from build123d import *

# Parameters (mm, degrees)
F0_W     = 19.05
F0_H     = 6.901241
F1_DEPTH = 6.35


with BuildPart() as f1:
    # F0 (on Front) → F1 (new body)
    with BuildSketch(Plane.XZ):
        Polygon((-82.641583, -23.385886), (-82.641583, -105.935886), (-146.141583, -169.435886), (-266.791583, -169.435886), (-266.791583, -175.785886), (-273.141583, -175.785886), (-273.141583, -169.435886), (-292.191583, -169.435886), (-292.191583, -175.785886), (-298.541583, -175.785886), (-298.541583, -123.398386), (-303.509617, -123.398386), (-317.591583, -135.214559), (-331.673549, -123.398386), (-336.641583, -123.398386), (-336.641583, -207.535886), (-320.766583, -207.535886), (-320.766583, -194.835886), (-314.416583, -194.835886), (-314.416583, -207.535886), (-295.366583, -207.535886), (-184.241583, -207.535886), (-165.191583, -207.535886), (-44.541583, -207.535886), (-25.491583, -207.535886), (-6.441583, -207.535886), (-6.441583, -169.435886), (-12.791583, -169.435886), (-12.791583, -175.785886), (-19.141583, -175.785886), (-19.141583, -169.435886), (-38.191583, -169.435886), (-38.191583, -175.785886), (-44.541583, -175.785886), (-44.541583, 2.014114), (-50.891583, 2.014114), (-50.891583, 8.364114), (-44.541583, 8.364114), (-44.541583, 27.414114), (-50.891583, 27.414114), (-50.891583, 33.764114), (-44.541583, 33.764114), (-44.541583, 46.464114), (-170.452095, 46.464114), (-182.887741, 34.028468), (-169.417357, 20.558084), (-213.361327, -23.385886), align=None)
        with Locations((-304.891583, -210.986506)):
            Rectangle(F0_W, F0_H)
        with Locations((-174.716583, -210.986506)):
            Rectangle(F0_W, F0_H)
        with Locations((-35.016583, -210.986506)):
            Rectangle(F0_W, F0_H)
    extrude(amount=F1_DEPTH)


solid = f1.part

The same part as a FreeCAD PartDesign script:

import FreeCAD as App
import Part
import Sketcher

V = App.Vector
Q = App.Units.Quantity

doc = App.newDocument("Part")
body = doc.addObject("PartDesign::Body", "Body")

# Sketch on XZ plane
sketch1 = body.newObject("Sketcher::SketchObject", "Sketch")
sketch1.AttachmentSupport = (doc.getObject("XZ_Plane"), [""])
sketch1.MapMode = "FlatFace"
sketch1.addGeometry(Part.LineSegment(V(-182.9, 34, 0), V(-169.4, 20.6, 0)), False)
sketch1.addGeometry(Part.LineSegment(V(-169.4, 20.6, 0), V(-213.4, -23.4, 0)), False)
sketch1.addGeometry(Part.LineSegment(V(-213.4, -23.4, 0), V(-82.6, -23.4, 0)), False)
sketch1.addGeometry(Part.LineSegment(V(-82.6, -23.4, 0), V(-82.6, -105.9, 0)), False)
sketch1.addGeometry(Part.LineSegment(V(-82.6, -105.9, 0), V(-146.1, -169.4, 0)), False)
sketch1.addGeometry(Part.LineSegment(V(-146.1, -169.4, 0), V(-266.8, -169.4, 0)), False)
sketch1.addGeometry(Part.LineSegment(V(-266.8, -169.4, 0), V(-266.8, -175.8, 0)), False)
sketch1.addGeometry(Part.LineSegment(V(-266.8, -175.8, 0), V(-273.1, -175.8, 0)), False)
sketch1.addGeometry(Part.LineSegment(V(-273.1, -175.8, 0), V(-273.1, -169.4, 0)), False)
sketch1.addGeometry(Part.LineSegment(V(-273.1, -169.4, 0), V(-292.2, -169.4, 0)), False)
sketch1.addGeometry(Part.LineSegment(V(-292.2, -169.4, 0), V(-292.2, -175.8, 0)), False)
sketch1.addGeometry(Part.LineSegment(V(-292.2, -175.8, 0), V(-298.5, -175.8, 0)), False)
sketch1.addGeometry(Part.LineSegment(V(-298.5, -175.8, 0), V(-298.5, -123.4, 0)), False)
sketch1.addGeometry(Part.LineSegment(V(-298.5, -123.4, 0), V(-303.5, -123.4, 0)), False)
sketch1.addGeometry(Part.LineSegment(V(-303.5, -123.4, 0), V(-317.6, -135.2, 0)), False)
sketch1.addGeometry(Part.LineSegment(V(-317.6, -135.2, 0), V(-331.7, -123.4, 0)), False)
sketch1.addGeometry(Part.LineSegment(V(-331.7, -123.4, 0), V(-336.6, -123.4, 0)), False)
sketch1.addGeometry(Part.LineSegment(V(-336.6, -123.4, 0), V(-336.6, -207.5, 0)), False)
sketch1.addGeometry(Part.LineSegment(V(-336.6, -207.5, 0), V(-320.8, -207.5, 0)), False)
sketch1.addGeometry(Part.LineSegment(V(-320.8, -207.5, 0), V(-320.8, -194.8, 0)), False)
sketch1.addGeometry(Part.LineSegment(V(-320.8, -194.8, 0), V(-314.4, -194.8, 0)), False)
sketch1.addGeometry(Part.LineSegment(V(-314.4, -194.8, 0), V(-314.4, -214.4, 0)), False)
sketch1.addGeometry(Part.LineSegment(V(-314.4, -214.4, 0), V(-295.4, -214.4, 0)), False)
sketch1.addGeometry(Part.LineSegment(V(-295.4, -214.4, 0), V(-295.4, -207.5, 0)), False)
sketch1.addGeometry(Part.LineSegment(V(-295.4, -207.5, 0), V(-184.2, -207.5, 0)), False)
sketch1.addGeometry(Part.LineSegment(V(-184.2, -207.5, 0), V(-184.2, -214.4, 0)), False)
sketch1.addGeometry(Part.LineSegment(V(-184.2, -214.4, 0), V(-165.2, -214.4, 0)), False)
sketch1.addGeometry(Part.LineSegment(V(-165.2, -214.4, 0), V(-165.2, -207.5, 0)), False)
sketch1.addGeometry(Part.LineSegment(V(-165.2, -207.5, 0), V(-44.5, -207.5, 0)), False)
sketch1.addGeometry(Part.LineSegment(V(-44.5, -207.5, 0), V(-44.5, -214.4, 0)), False)
sketch1.addGeometry(Part.LineSegment(V(-44.5, -214.4, 0), V(-25.5, -214.4, 0)), False)
sketch1.addGeometry(Part.LineSegment(V(-25.5, -214.4, 0), V(-25.5, -207.5, 0)), False)
sketch1.addGeometry(Part.LineSegment(V(-25.5, -207.5, 0), V(-6.4, -207.5, 0)), False)
sketch1.addGeometry(Part.LineSegment(V(-6.4, -207.5, 0), V(-6.4, -169.4, 0)), False)
sketch1.addGeometry(Part.LineSegment(V(-6.4, -169.4, 0), V(-12.8, -169.4, 0)), False)
sketch1.addGeometry(Part.LineSegment(V(-12.8, -169.4, 0), V(-12.8, -175.8, 0)), False)
sketch1.addGeometry(Part.LineSegment(V(-12.8, -175.8, 0), V(-19.1, -175.8, 0)), False)
sketch1.addGeometry(Part.LineSegment(V(-19.1, -175.8, 0), V(-19.1, -169.4, 0)), False)
sketch1.addGeometry(Part.LineSegment(V(-19.1, -169.4, 0), V(-38.2, -169.4, 0)), False)
sketch1.addGeometry(Part.LineSegment(V(-38.2, -169.4, 0), V(-38.2, -175.8, 0)), False)
sketch1.addGeometry(Part.LineSegment(V(-38.2, -175.8, 0), V(-44.5, -175.8, 0)), False)
sketch1.addGeometry(Part.LineSegment(V(-44.5, -175.8, 0), V(-44.5, 2, 0)), False)
sketch1.addGeometry(Part.LineSegment(V(-44.5, 2, 0), V(-50.9, 2, 0)), False)
sketch1.addGeometry(Part.LineSegment(V(-50.9, 2, 0), V(-50.9, 8.4, 0)), False)
sketch1.addGeometry(Part.LineSegment(V(-50.9, 8.4, 0), V(-44.5, 8.4, 0)), False)
sketch1.addGeometry(Part.LineSegment(V(-44.5, 8.4, 0), V(-44.5, 27.4, 0)), False)
sketch1.addGeometry(Part.LineSegment(V(-44.5, 27.4, 0), V(-50.9, 27.4, 0)), False)
sketch1.addGeometry(Part.LineSegment(V(-50.9, 27.4, 0), V(-50.9, 33.8, 0)), False)
sketch1.addGeometry(Part.LineSegment(V(-50.9, 33.8, 0), V(-44.5, 33.8, 0)), False)
sketch1.addGeometry(Part.LineSegment(V(-44.5, 33.8, 0), V(-44.5, 46.5, 0)), False)
sketch1.addGeometry(Part.LineSegment(V(-44.5, 46.5, 0), V(-170.5, 46.5, 0)), False)
sketch1.addGeometry(Part.LineSegment(V(-170.5, 46.5, 0), V(-182.9, 34, 0)), False)
sketch1.addConstraint(Sketcher.Constraint("Coincident", 0, 2, 1, 1))
sketch1.addConstraint(Sketcher.Constraint("Coincident", 1, 2, 2, 1))
sketch1.addConstraint(Sketcher.Constraint("Coincident", 2, 2, 3, 1))
sketch1.addConstraint(Sketcher.Constraint("Coincident", 3, 2, 4, 1))
sketch1.addConstraint(Sketcher.Constraint("Coincident", 4, 2, 5, 1))
sketch1.addConstraint(Sketcher.Constraint("Coincident", 5, 2, 6, 1))
sketch1.addConstraint(Sketcher.Constraint("Coincident", 6, 2, 7, 1))
sketch1.addConstraint(Sketcher.Constraint("Coincident", 7, 2, 8, 1))
sketch1.addConstraint(Sketcher.Constraint("Coincident", 8, 2, 9, 1))
sketch1.addConstraint(Sketcher.Constraint("Coincident", 9, 2, 10, 1))
sketch1.addConstraint(Sketcher.Constraint("Coincident", 10, 2, 11, 1))
sketch1.addConstraint(Sketcher.Constraint("Coincident", 11, 2, 12, 1))
sketch1.addConstraint(Sketcher.Constraint("Coincident", 12, 2, 13, 1))
sketch1.addConstraint(Sketcher.Constraint("Coincident", 13, 2, 14, 1))
sketch1.addConstraint(Sketcher.Constraint("Coincident", 14, 2, 15, 1))
sketch1.addConstraint(Sketcher.Constraint("Coincident", 15, 2, 16, 1))
sketch1.addConstraint(Sketcher.Constraint("Coincident", 16, 2, 17, 1))
sketch1.addConstraint(Sketcher.Constraint("Coincident", 17, 2, 18, 1))
sketch1.addConstraint(Sketcher.Constraint("Coincident", 18, 2, 19, 1))
sketch1.addConstraint(Sketcher.Constraint("Coincident", 19, 2, 20, 1))
sketch1.addConstraint(Sketcher.Constraint("Coincident", 20, 2, 21, 1))
sketch1.addConstraint(Sketcher.Constraint("Coincident", 21, 2, 22, 1))
sketch1.addConstraint(Sketcher.Constraint("Coincident", 22, 2, 23, 1))
sketch1.addConstraint(Sketcher.Constraint("Coincident", 23, 2, 24, 1))
sketch1.addConstraint(Sketcher.Constraint("Coincident", 24, 2, 25, 1))
sketch1.addConstraint(Sketcher.Constraint("Coincident", 25, 2, 26, 1))
sketch1.addConstraint(Sketcher.Constraint("Coincident", 26, 2, 27, 1))
sketch1.addConstraint(Sketcher.Constraint("Coincident", 27, 2, 28, 1))
sketch1.addConstraint(Sketcher.Constraint("Coincident", 28, 2, 29, 1))
sketch1.addConstraint(Sketcher.Constraint("Coincident", 29, 2, 30, 1))
sketch1.addConstraint(Sketcher.Constraint("Coincident", 30, 2, 31, 1))
sketch1.addConstraint(Sketcher.Constraint("Coincident", 31, 2, 32, 1))
sketch1.addConstraint(Sketcher.Constraint("Coincident", 32, 2, 33, 1))
sketch1.addConstraint(Sketcher.Constraint("Coincident", 33, 2, 34, 1))
sketch1.addConstraint(Sketcher.Constraint("Coincident", 34, 2, 35, 1))
sketch1.addConstraint(Sketcher.Constraint("Coincident", 35, 2, 36, 1))
sketch1.addConstraint(Sketcher.Constraint("Coincident", 36, 2, 37, 1))
sketch1.addConstraint(Sketcher.Constraint("Coincident", 37, 2, 38, 1))
sketch1.addConstraint(Sketcher.Constraint("Coincident", 38, 2, 39, 1))
sketch1.addConstraint(Sketcher.Constraint("Coincident", 39, 2, 40, 1))
sketch1.addConstraint(Sketcher.Constraint("Coincident", 40, 2, 41, 1))
sketch1.addConstraint(Sketcher.Constraint("Coincident", 41, 2, 42, 1))
sketch1.addConstraint(Sketcher.Constraint("Coincident", 42, 2, 43, 1))
sketch1.addConstraint(Sketcher.Constraint("Coincident", 43, 2, 44, 1))
sketch1.addConstraint(Sketcher.Constraint("Coincident", 44, 2, 45, 1))
sketch1.addConstraint(Sketcher.Constraint("Coincident", 45, 2, 46, 1))
sketch1.addConstraint(Sketcher.Constraint("Coincident", 46, 2, 47, 1))
sketch1.addConstraint(Sketcher.Constraint("Coincident", 47, 2, 48, 1))
sketch1.addConstraint(Sketcher.Constraint("Coincident", 48, 2, 49, 1))
sketch1.addConstraint(Sketcher.Constraint("Coincident", 49, 2, 50, 1))
sketch1.addConstraint(Sketcher.Constraint("Coincident", 50, 2, 51, 1))
sketch1.addConstraint(Sketcher.Constraint("Coincident", 51, 2, 0, 1))
sketch1.addConstraint(Sketcher.Constraint("Horizontal", 2))
sketch1.addConstraint(Sketcher.Constraint("Vertical", 3))
sketch1.addConstraint(Sketcher.Constraint("Horizontal", 5))
sketch1.addConstraint(Sketcher.Constraint("Vertical", 6))
sketch1.addConstraint(Sketcher.Constraint("Horizontal", 7))
sketch1.addConstraint(Sketcher.Constraint("Vertical", 8))
sketch1.addConstraint(Sketcher.Constraint("Horizontal", 9))
sketch1.addConstraint(Sketcher.Constraint("Vertical", 10))
sketch1.addConstraint(Sketcher.Constraint("Horizontal", 11))
sketch1.addConstraint(Sketcher.Constraint("Vertical", 12))
sketch1.addConstraint(Sketcher.Constraint("Horizontal", 13))
sketch1.addConstraint(Sketcher.Constraint("Horizontal", 16))
sketch1.addConstraint(Sketcher.Constraint("Vertical", 17))
sketch1.addConstraint(Sketcher.Constraint("Horizontal", 18))
sketch1.addConstraint(Sketcher.Constraint("Vertical", 19))
sketch1.addConstraint(Sketcher.Constraint("Horizontal", 20))
sketch1.addConstraint(Sketcher.Constraint("Vertical", 21))
sketch1.addConstraint(Sketcher.Constraint("Horizontal", 22))
sketch1.addConstraint(Sketcher.Constraint("Vertical", 23))
sketch1.addConstraint(Sketcher.Constraint("Horizontal", 24))
sketch1.addConstraint(Sketcher.Constraint("Vertical", 25))
sketch1.addConstraint(Sketcher.Constraint("Horizontal", 26))
sketch1.addConstraint(Sketcher.Constraint("Vertical", 27))
sketch1.addConstraint(Sketcher.Constraint("Horizontal", 28))
sketch1.addConstraint(Sketcher.Constraint("Vertical", 29))
sketch1.addConstraint(Sketcher.Constraint("Horizontal", 30))
sketch1.addConstraint(Sketcher.Constraint("Vertical", 31))
sketch1.addConstraint(Sketcher.Constraint("Horizontal", 32))
sketch1.addConstraint(Sketcher.Constraint("Vertical", 33))
sketch1.addConstraint(Sketcher.Constraint("Horizontal", 34))
sketch1.addConstraint(Sketcher.Constraint("Vertical", 35))
sketch1.addConstraint(Sketcher.Constraint("Horizontal", 36))
sketch1.addConstraint(Sketcher.Constraint("Vertical", 37))
sketch1.addConstraint(Sketcher.Constraint("Horizontal", 38))
sketch1.addConstraint(Sketcher.Constraint("Vertical", 39))
sketch1.addConstraint(Sketcher.Constraint("Horizontal", 40))
sketch1.addConstraint(Sketcher.Constraint("Vertical", 41))
sketch1.addConstraint(Sketcher.Constraint("Horizontal", 42))
sketch1.addConstraint(Sketcher.Constraint("Vertical", 43))
sketch1.addConstraint(Sketcher.Constraint("Horizontal", 44))
sketch1.addConstraint(Sketcher.Constraint("Vertical", 45))
sketch1.addConstraint(Sketcher.Constraint("Horizontal", 46))
sketch1.addConstraint(Sketcher.Constraint("Vertical", 47))
sketch1.addConstraint(Sketcher.Constraint("Horizontal", 48))
sketch1.addConstraint(Sketcher.Constraint("Vertical", 49))
sketch1.addConstraint(Sketcher.Constraint("Horizontal", 50))
sketch1.addConstraint(Sketcher.Constraint("Perpendicular", 0, 1))
sketch1.addConstraint(Sketcher.Constraint("Parallel", 1, 4))
sketch1.addConstraint(Sketcher.Constraint("Parallel", 4, 51))
sketch1.addConstraint(Sketcher.Constraint("Horizontal", 5, 2, 8, 2))
sketch1.addConstraint(Sketcher.Constraint("Horizontal", 7, 2, 10, 2))
sketch1.addConstraint(Sketcher.Constraint("Horizontal", 13, 2, 15, 2))
sketch1.addConstraint(Sketcher.Constraint("Horizontal", 18, 2, 23, 2))
sketch1.addConstraint(Sketcher.Constraint("Horizontal", 22, 2, 25, 2))
sketch1.addConstraint(Sketcher.Constraint("Horizontal", 24, 2, 27, 2))
sketch1.addConstraint(Sketcher.Constraint("Horizontal", 26, 2, 29, 2))
sketch1.addConstraint(Sketcher.Constraint("Horizontal", 28, 2, 31, 2))
sketch1.addConstraint(Sketcher.Constraint("Horizontal", 9, 2, 33, 2))
sketch1.addConstraint(Sketcher.Constraint("Horizontal", 11, 2, 35, 2))
sketch1.addConstraint(Sketcher.Constraint("Horizontal", 34, 2, 37, 2))
sketch1.addConstraint(Sketcher.Constraint("Horizontal", 36, 2, 39, 2))
sketch1.addConstraint(Sketcher.Constraint("Vertical", 29, 2, 40, 2))
sketch1.addConstraint(Sketcher.Constraint("Vertical", 41, 2, 44, 2))
sketch1.addConstraint(Sketcher.Constraint("Vertical", 43, 2, 46, 2))
sketch1.addConstraint(Sketcher.Constraint("Vertical", 45, 2, 48, 2))
sketch1.addConstraint(Sketcher.Constraint("Equal", 7, 11))
sketch1.addConstraint(Sketcher.Constraint("Equal", 13, 16))
sketch1.addConstraint(Sketcher.Constraint("Equal", 11, 20))
sketch1.addConstraint(Sketcher.Constraint("Equal", 9, 22))
sketch1.addConstraint(Sketcher.Constraint("Equal", 22, 26))
sketch1.addConstraint(Sketcher.Constraint("Equal", 5, 28))
sketch1.addConstraint(Sketcher.Constraint("Equal", 26, 30))
sketch1.addConstraint(Sketcher.Constraint("Equal", 30, 32))
sketch1.addConstraint(Sketcher.Constraint("Equal", 20, 34))
sketch1.addConstraint(Sketcher.Constraint("Equal", 34, 36))
sketch1.addConstraint(Sketcher.Constraint("Equal", 32, 38))
sketch1.addConstraint(Sketcher.Constraint("Equal", 36, 40))
sketch1.addConstraint(Sketcher.Constraint("Equal", 40, 42))
sketch1.addConstraint(Sketcher.Constraint("Equal", 48, 6))
sketch1.addConstraint(Sketcher.Constraint("Equal", 39, 43))
sketch1.addConstraint(Sketcher.Constraint("Equal", 38, 45))
sketch1.addConstraint(Sketcher.Constraint("Equal", 43, 47))
sketch1.addConstraint(Sketcher.Constraint("Equal", 19, 49))
sketch1.addConstraint(Sketcher.Constraint("Equal", 14, 15))
sketch1.addConstraint(Sketcher.Constraint("DistanceY", 41, 1, 41, 2, Q("7 in")))
sketch1.addConstraint(Sketcher.Constraint("DistanceY", 19, 1, 19, 2, Q("0.5 in")))
sketch1.addConstraint(Sketcher.Constraint("DistanceY", 33, 1, 33, 2, Q("1.5 in")))
sketch1.addConstraint(Sketcher.Constraint("Angle", 0, Q("-45 deg")))
sketch1.addConstraint(Sketcher.Constraint("Angle", 14, Q("-139.999999 deg")))
sketch1.addConstraint(Sketcher.Constraint("DistanceY", 6, 2, 1, 2, Q("6 in")))
sketch1.addConstraint(Sketcher.Constraint("DistanceX", 7, 2, 4, 2, Q("5 in")))
sketch1.addConstraint(Sketcher.Constraint("DistanceX", 9, 2, 5, 2, Q("1 in")))
sketch1.addConstraint(Sketcher.Constraint("DistanceX", 14, 2, 9, 2, Q("1 in")))
sketch1.addConstraint(Sketcher.Constraint("DistanceX", 6, 2, 26, 2, Q("4 in")))
sketch1.addConstraint(Sketcher.Constraint("DistanceY", 28, 2, 3, 2, Q("4 in")))
sketch1.addConstraint(Sketcher.Constraint("Distance", 0, Q("0.75 in")))
sketch1.addConstraint(Sketcher.Constraint("DistanceX", 18, 1, 18, 2, Q("0.625 in")))
sketch1.addConstraint(Sketcher.Constraint("DistanceY", 12, 1, 12, 2, Q("2.0625 in")))
sketch1.addConstraint(Sketcher.Constraint("Distance", 14, 18.382701))
sketch1.addConstraint(Sketcher.Constraint("DistanceY", 21, 2, 21, 1, 19.601241))
sketch1.addConstraint(Sketcher.Constraint("Distance", 1, 62.146158))
sketch1.addConstraint(Sketcher.Constraint("DistanceX", 2, 1, 2, 2, 130.719744))
sketch1.addConstraint(Sketcher.Constraint("DistanceY", 14, 2, -1, 1, 135.214559))
sketch1.addConstraint(Sketcher.Constraint("DistanceX", 15, 2, -1, 1, 331.673549))
pad1 = body.newObject("PartDesign::Pad", "Pad")
pad1.Profile = sketch1
pad1.Length = Q("0.25 in")

doc.recompute()
